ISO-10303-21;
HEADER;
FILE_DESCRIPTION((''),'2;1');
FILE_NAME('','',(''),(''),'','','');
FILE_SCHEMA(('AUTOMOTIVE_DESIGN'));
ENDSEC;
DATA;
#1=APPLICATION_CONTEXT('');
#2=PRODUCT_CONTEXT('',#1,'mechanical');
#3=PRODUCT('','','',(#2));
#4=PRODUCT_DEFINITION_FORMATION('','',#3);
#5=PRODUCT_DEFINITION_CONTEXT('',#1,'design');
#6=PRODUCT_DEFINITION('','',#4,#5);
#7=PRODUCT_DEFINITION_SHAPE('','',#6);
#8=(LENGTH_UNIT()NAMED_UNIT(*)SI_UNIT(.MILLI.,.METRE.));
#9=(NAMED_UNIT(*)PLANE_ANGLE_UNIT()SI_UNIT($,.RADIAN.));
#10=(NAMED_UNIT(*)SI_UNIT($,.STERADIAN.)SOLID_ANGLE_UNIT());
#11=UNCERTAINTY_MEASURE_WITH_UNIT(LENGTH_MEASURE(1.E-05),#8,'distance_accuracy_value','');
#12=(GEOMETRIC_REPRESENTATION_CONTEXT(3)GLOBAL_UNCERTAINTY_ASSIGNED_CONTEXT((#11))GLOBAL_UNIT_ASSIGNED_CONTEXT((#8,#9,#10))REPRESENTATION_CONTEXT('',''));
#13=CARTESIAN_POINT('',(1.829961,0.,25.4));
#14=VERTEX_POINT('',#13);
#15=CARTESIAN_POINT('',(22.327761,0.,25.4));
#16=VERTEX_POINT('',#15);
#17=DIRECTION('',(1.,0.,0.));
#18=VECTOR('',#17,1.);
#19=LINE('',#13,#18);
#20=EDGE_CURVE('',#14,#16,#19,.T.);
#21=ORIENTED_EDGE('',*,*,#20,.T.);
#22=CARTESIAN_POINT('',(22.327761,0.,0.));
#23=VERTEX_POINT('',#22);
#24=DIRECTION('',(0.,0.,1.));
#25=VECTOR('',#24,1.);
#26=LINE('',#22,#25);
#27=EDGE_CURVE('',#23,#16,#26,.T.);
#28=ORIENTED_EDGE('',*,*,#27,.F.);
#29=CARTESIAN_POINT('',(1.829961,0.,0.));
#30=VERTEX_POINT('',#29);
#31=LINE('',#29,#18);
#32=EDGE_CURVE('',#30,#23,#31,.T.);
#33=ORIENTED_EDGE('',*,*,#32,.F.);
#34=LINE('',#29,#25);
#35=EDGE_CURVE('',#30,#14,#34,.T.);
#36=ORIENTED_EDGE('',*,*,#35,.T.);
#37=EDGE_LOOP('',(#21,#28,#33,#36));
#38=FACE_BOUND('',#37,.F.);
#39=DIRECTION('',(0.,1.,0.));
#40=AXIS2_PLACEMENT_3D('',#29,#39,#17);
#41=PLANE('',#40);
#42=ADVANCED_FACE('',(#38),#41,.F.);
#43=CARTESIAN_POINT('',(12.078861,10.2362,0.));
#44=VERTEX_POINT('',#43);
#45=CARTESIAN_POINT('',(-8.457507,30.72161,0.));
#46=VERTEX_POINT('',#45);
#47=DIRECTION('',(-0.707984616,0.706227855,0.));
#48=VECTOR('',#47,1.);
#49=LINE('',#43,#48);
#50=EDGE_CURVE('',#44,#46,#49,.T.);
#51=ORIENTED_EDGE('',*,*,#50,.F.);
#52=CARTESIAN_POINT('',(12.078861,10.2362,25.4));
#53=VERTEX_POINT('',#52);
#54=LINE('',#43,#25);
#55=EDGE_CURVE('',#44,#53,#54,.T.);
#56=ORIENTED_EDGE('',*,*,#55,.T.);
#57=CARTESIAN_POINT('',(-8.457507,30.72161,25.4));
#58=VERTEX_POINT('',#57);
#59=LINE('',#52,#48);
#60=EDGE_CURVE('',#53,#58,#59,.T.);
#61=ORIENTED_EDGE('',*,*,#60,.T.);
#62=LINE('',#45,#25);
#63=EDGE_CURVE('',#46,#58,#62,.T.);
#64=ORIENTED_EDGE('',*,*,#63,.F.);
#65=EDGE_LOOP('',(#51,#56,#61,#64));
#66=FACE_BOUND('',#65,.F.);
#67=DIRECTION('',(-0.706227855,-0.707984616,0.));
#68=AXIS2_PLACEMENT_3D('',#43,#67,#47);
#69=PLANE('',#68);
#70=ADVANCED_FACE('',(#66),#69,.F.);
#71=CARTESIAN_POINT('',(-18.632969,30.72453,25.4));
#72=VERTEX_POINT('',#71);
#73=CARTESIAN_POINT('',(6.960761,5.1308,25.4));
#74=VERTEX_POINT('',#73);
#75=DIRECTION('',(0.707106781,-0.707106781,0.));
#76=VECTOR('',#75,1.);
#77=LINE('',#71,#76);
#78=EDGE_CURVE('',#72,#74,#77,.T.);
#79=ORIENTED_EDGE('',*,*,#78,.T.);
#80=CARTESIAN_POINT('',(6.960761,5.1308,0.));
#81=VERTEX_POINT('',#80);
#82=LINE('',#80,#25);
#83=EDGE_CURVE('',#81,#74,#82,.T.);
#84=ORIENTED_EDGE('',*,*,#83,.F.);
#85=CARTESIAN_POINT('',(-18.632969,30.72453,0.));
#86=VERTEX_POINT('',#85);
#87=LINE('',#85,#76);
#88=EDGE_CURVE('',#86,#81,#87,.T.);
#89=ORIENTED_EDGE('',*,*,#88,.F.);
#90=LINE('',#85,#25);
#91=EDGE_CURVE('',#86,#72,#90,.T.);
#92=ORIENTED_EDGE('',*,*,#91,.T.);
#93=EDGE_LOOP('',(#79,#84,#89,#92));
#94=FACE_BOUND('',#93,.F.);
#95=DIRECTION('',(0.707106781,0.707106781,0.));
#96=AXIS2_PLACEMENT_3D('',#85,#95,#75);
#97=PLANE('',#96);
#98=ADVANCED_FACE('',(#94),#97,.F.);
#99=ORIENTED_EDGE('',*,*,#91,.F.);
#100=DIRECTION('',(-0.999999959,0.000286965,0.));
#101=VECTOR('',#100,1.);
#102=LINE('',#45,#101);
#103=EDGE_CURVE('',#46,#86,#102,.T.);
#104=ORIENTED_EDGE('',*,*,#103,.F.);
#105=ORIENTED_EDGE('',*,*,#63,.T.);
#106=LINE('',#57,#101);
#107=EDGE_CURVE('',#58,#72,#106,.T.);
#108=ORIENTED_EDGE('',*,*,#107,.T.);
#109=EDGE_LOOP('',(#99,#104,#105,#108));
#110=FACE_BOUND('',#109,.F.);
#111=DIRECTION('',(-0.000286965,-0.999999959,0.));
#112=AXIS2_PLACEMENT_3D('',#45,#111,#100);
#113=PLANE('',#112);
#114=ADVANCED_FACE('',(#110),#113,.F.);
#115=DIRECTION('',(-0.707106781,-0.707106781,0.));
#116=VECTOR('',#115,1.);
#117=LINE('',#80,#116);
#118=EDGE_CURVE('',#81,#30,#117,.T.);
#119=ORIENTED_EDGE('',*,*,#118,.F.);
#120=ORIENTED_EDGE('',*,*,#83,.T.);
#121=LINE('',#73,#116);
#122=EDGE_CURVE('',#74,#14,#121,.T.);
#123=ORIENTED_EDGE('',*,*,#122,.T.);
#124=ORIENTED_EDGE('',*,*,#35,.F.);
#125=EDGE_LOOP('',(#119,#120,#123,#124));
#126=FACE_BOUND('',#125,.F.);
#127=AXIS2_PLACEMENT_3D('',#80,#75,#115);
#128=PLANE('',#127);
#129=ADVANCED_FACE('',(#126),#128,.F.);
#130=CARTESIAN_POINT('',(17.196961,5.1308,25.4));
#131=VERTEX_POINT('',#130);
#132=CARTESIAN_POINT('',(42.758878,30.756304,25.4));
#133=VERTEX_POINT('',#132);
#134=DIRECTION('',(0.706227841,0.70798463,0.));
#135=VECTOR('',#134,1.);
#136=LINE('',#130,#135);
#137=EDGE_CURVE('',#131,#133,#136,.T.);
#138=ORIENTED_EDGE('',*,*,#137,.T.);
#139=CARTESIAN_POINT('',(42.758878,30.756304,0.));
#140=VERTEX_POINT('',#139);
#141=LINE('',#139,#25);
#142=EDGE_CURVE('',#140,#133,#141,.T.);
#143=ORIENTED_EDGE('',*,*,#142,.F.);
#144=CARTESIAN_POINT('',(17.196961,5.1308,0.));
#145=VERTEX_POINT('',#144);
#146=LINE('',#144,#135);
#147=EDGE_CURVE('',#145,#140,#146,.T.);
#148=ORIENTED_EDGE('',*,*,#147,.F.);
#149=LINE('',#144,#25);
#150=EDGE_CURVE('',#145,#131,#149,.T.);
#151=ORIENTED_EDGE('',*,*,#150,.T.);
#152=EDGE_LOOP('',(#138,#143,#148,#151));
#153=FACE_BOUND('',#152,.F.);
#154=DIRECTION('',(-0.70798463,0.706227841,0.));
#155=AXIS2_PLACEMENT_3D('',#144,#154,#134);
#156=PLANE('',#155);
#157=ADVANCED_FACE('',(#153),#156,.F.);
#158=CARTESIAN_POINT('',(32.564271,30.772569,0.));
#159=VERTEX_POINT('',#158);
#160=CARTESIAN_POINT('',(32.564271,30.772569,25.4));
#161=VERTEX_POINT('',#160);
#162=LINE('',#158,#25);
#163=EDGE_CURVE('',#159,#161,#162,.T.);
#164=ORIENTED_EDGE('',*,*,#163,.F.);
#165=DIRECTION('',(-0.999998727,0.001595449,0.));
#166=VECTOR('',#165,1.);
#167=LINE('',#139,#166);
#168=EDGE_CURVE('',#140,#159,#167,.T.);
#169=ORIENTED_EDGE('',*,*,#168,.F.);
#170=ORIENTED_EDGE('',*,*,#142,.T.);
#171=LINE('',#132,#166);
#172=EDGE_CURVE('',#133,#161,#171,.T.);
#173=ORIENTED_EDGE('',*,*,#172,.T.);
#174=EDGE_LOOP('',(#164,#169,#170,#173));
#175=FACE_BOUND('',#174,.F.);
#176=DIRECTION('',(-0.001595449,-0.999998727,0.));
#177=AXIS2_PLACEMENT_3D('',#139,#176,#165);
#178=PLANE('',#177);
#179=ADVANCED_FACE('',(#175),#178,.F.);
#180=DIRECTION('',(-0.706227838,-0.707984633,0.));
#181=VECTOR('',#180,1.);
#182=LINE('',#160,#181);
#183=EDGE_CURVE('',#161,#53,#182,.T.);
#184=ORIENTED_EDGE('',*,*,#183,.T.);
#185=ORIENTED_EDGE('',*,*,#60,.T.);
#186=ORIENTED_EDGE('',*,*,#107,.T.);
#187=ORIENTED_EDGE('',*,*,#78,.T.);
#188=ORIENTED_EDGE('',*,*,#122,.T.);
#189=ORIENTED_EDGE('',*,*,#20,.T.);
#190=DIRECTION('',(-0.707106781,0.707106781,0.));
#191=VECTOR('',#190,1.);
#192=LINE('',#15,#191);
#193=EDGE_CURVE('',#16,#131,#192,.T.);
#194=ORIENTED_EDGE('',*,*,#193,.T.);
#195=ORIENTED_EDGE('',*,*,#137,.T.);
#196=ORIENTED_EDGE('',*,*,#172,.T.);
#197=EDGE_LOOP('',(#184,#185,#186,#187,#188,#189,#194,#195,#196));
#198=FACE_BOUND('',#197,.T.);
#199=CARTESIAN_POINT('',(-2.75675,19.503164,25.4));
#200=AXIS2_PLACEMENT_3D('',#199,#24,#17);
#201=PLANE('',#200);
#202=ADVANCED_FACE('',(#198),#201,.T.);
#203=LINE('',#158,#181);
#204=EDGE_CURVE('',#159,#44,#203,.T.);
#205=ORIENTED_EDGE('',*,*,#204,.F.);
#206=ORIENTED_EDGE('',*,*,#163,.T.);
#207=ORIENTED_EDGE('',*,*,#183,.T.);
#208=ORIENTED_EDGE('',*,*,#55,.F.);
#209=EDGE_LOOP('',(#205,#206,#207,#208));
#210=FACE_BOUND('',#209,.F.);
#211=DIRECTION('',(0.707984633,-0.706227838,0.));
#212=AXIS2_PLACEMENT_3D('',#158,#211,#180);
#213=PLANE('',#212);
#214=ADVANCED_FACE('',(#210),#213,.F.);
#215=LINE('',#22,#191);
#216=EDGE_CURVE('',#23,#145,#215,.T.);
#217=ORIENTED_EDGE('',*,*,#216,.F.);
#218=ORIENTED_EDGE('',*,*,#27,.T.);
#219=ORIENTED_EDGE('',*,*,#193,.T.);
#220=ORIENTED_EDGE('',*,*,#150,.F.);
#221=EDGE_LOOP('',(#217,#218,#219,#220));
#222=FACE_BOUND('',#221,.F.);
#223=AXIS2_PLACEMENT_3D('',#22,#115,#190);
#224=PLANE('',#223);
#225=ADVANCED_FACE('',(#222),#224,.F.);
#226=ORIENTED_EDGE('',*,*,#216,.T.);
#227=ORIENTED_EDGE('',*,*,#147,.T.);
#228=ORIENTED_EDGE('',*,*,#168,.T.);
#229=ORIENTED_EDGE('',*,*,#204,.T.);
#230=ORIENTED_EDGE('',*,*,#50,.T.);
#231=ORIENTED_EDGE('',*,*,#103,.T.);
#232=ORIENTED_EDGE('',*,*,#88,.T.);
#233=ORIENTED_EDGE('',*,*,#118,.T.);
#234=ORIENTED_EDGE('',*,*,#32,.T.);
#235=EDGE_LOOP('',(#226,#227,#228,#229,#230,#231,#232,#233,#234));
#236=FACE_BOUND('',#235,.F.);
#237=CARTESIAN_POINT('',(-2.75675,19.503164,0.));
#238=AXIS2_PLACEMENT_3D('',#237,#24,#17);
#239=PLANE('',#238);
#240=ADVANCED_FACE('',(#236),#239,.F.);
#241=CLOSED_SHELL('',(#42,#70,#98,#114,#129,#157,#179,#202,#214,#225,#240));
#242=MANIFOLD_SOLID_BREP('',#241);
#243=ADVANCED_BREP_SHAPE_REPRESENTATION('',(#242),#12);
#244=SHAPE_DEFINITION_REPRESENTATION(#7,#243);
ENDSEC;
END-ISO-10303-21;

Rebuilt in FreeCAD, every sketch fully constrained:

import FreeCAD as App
import Part
import Sketcher
from FreeCAD import Vector
Q = App.Units.Quantity

doc = App.newDocument("Part")
body = doc.addObject("PartDesign::Body", "Body")

# Sketch on XY plane
sketch1 = body.newObject("Sketcher::SketchObject", "Sketch")
sketch1.AttachmentSupport = (doc.getObject("XY_Plane"), [""])
sketch1.MapMode = "FlatFace"
sketch1.addGeometry(Part.LineSegment(Vector(-18.632969, 30.72453, 0), Vector(6.960761, 5.1308, 0)), False)
sketch1.addGeometry(Part.LineSegment(Vector(6.960761, 5.1308, 0), Vector(1.829961, 0, 0)), False)
sketch1.addGeometry(Part.LineSegment(Vector(1.829961, 0, 0), Vector(22.327761, 0, 0)), False)
sketch1.addGeometry(Part.LineSegment(Vector(22.327761, 0, 0), Vector(17.196961, 5.1308, 0)), False)
sketch1.addGeometry(Part.LineSegment(Vector(17.196961, 5.1308, 0), Vector(42.758878, 30.756304, 0)), False)
sketch1.addGeometry(Part.LineSegment(Vector(42.758878, 30.756304, 0), Vector(32.564271, 30.772569, 0)), False)
sketch1.addGeometry(Part.LineSegment(Vector(32.564271, 30.772569, 0), Vector(12.078861, 10.2362, 0)), False)
sketch1.addGeometry(Part.LineSegment(Vector(12.078861, 10.2362, 0), Vector(-8.457507, 30.72161, 0)), False)
sketch1.addGeometry(Part.LineSegment(Vector(-8.457507, 30.72161, 0), Vector(-18.632969, 30.72453, 0)), False)
sketch1.addConstraint(Sketcher.Constraint("Coincident", 0, 2, 1, 1))
sketch1.addConstraint(Sketcher.Constraint("Coincident", 1, 2, 2, 1))
sketch1.addConstraint(Sketcher.Constraint("Coincident", 2, 2, 3, 1))
sketch1.addConstraint(Sketcher.Constraint("Coincident", 3, 2, 4, 1))
sketch1.addConstraint(Sketcher.Constraint("Coincident", 4, 2, 5, 1))
sketch1.addConstraint(Sketcher.Constraint("Coincident", 5, 2, 6, 1))
sketch1.addConstraint(Sketcher.Constraint("Coincident", 6, 2, 7, 1))
sketch1.addConstraint(Sketcher.Constraint("Coincident", 7, 2, 8, 1))
sketch1.addConstraint(Sketcher.Constraint("Coincident", 8, 2, 0, 1))
sketch1.addConstraint(Sketcher.Constraint("Horizontal", 2))
sketch1.addConstraint(Sketcher.Constraint("PointOnObject", 1, 2, -1))
sketch1.addConstraint(Sketcher.Constraint("Perpendicular", 0, 1))
sketch1.addConstraint(Sketcher.Constraint("Perpendicular", 1, 3))
sketch1.addConstraint(Sketcher.Constraint("Parallel", 4, 6))
sketch1.addConstraint(Sketcher.Constraint("Perpendicular", 6, 7))
sketch1.addConstraint(Sketcher.Constraint("Horizontal", 0, 2, 3, 2))
sketch1.addConstraint(Sketcher.Constraint("Equal", 1, 3))
sketch1.addConstraint(Sketcher.Constraint("Equal", 0, 4))
sketch1.addConstraint(Sketcher.Constraint("Equal", 6, 7))
sketch1.addConstraint(Sketcher.Constraint("DistanceX", 2, 1, 2, 2, Q("0.807 in")))
sketch1.addConstraint(Sketcher.Constraint("Distance", 0, Q("1.425 in")))
sketch1.addConstraint(Sketcher.Constraint("Distance", 6, Q("1.142 in")))
sketch1.addConstraint(Sketcher.Constraint("DistanceY", -1, 1, 0, 2, Q("0.202 in")))
sketch1.addConstraint(Sketcher.Constraint("DistanceY", -1, 1, 6, 2, Q("0.403 in")))
sketch1.addConstraint(Sketcher.Constraint("DistanceX", 0, 2, 6, 2, Q("0.2015 in")))
sketch1.addConstraint(Sketcher.Constraint("Distance", 5, Q("10.19462 mm")))
sketch1.addConstraint(Sketcher.Constraint("DistanceX", -1, 1, 0, 2, Q("6.960761 mm")))
pad1 = body.newObject("PartDesign::Pad", "Pad")
pad1.Profile = sketch1
pad1.Length = Q("1 in")

doc.recompute()
